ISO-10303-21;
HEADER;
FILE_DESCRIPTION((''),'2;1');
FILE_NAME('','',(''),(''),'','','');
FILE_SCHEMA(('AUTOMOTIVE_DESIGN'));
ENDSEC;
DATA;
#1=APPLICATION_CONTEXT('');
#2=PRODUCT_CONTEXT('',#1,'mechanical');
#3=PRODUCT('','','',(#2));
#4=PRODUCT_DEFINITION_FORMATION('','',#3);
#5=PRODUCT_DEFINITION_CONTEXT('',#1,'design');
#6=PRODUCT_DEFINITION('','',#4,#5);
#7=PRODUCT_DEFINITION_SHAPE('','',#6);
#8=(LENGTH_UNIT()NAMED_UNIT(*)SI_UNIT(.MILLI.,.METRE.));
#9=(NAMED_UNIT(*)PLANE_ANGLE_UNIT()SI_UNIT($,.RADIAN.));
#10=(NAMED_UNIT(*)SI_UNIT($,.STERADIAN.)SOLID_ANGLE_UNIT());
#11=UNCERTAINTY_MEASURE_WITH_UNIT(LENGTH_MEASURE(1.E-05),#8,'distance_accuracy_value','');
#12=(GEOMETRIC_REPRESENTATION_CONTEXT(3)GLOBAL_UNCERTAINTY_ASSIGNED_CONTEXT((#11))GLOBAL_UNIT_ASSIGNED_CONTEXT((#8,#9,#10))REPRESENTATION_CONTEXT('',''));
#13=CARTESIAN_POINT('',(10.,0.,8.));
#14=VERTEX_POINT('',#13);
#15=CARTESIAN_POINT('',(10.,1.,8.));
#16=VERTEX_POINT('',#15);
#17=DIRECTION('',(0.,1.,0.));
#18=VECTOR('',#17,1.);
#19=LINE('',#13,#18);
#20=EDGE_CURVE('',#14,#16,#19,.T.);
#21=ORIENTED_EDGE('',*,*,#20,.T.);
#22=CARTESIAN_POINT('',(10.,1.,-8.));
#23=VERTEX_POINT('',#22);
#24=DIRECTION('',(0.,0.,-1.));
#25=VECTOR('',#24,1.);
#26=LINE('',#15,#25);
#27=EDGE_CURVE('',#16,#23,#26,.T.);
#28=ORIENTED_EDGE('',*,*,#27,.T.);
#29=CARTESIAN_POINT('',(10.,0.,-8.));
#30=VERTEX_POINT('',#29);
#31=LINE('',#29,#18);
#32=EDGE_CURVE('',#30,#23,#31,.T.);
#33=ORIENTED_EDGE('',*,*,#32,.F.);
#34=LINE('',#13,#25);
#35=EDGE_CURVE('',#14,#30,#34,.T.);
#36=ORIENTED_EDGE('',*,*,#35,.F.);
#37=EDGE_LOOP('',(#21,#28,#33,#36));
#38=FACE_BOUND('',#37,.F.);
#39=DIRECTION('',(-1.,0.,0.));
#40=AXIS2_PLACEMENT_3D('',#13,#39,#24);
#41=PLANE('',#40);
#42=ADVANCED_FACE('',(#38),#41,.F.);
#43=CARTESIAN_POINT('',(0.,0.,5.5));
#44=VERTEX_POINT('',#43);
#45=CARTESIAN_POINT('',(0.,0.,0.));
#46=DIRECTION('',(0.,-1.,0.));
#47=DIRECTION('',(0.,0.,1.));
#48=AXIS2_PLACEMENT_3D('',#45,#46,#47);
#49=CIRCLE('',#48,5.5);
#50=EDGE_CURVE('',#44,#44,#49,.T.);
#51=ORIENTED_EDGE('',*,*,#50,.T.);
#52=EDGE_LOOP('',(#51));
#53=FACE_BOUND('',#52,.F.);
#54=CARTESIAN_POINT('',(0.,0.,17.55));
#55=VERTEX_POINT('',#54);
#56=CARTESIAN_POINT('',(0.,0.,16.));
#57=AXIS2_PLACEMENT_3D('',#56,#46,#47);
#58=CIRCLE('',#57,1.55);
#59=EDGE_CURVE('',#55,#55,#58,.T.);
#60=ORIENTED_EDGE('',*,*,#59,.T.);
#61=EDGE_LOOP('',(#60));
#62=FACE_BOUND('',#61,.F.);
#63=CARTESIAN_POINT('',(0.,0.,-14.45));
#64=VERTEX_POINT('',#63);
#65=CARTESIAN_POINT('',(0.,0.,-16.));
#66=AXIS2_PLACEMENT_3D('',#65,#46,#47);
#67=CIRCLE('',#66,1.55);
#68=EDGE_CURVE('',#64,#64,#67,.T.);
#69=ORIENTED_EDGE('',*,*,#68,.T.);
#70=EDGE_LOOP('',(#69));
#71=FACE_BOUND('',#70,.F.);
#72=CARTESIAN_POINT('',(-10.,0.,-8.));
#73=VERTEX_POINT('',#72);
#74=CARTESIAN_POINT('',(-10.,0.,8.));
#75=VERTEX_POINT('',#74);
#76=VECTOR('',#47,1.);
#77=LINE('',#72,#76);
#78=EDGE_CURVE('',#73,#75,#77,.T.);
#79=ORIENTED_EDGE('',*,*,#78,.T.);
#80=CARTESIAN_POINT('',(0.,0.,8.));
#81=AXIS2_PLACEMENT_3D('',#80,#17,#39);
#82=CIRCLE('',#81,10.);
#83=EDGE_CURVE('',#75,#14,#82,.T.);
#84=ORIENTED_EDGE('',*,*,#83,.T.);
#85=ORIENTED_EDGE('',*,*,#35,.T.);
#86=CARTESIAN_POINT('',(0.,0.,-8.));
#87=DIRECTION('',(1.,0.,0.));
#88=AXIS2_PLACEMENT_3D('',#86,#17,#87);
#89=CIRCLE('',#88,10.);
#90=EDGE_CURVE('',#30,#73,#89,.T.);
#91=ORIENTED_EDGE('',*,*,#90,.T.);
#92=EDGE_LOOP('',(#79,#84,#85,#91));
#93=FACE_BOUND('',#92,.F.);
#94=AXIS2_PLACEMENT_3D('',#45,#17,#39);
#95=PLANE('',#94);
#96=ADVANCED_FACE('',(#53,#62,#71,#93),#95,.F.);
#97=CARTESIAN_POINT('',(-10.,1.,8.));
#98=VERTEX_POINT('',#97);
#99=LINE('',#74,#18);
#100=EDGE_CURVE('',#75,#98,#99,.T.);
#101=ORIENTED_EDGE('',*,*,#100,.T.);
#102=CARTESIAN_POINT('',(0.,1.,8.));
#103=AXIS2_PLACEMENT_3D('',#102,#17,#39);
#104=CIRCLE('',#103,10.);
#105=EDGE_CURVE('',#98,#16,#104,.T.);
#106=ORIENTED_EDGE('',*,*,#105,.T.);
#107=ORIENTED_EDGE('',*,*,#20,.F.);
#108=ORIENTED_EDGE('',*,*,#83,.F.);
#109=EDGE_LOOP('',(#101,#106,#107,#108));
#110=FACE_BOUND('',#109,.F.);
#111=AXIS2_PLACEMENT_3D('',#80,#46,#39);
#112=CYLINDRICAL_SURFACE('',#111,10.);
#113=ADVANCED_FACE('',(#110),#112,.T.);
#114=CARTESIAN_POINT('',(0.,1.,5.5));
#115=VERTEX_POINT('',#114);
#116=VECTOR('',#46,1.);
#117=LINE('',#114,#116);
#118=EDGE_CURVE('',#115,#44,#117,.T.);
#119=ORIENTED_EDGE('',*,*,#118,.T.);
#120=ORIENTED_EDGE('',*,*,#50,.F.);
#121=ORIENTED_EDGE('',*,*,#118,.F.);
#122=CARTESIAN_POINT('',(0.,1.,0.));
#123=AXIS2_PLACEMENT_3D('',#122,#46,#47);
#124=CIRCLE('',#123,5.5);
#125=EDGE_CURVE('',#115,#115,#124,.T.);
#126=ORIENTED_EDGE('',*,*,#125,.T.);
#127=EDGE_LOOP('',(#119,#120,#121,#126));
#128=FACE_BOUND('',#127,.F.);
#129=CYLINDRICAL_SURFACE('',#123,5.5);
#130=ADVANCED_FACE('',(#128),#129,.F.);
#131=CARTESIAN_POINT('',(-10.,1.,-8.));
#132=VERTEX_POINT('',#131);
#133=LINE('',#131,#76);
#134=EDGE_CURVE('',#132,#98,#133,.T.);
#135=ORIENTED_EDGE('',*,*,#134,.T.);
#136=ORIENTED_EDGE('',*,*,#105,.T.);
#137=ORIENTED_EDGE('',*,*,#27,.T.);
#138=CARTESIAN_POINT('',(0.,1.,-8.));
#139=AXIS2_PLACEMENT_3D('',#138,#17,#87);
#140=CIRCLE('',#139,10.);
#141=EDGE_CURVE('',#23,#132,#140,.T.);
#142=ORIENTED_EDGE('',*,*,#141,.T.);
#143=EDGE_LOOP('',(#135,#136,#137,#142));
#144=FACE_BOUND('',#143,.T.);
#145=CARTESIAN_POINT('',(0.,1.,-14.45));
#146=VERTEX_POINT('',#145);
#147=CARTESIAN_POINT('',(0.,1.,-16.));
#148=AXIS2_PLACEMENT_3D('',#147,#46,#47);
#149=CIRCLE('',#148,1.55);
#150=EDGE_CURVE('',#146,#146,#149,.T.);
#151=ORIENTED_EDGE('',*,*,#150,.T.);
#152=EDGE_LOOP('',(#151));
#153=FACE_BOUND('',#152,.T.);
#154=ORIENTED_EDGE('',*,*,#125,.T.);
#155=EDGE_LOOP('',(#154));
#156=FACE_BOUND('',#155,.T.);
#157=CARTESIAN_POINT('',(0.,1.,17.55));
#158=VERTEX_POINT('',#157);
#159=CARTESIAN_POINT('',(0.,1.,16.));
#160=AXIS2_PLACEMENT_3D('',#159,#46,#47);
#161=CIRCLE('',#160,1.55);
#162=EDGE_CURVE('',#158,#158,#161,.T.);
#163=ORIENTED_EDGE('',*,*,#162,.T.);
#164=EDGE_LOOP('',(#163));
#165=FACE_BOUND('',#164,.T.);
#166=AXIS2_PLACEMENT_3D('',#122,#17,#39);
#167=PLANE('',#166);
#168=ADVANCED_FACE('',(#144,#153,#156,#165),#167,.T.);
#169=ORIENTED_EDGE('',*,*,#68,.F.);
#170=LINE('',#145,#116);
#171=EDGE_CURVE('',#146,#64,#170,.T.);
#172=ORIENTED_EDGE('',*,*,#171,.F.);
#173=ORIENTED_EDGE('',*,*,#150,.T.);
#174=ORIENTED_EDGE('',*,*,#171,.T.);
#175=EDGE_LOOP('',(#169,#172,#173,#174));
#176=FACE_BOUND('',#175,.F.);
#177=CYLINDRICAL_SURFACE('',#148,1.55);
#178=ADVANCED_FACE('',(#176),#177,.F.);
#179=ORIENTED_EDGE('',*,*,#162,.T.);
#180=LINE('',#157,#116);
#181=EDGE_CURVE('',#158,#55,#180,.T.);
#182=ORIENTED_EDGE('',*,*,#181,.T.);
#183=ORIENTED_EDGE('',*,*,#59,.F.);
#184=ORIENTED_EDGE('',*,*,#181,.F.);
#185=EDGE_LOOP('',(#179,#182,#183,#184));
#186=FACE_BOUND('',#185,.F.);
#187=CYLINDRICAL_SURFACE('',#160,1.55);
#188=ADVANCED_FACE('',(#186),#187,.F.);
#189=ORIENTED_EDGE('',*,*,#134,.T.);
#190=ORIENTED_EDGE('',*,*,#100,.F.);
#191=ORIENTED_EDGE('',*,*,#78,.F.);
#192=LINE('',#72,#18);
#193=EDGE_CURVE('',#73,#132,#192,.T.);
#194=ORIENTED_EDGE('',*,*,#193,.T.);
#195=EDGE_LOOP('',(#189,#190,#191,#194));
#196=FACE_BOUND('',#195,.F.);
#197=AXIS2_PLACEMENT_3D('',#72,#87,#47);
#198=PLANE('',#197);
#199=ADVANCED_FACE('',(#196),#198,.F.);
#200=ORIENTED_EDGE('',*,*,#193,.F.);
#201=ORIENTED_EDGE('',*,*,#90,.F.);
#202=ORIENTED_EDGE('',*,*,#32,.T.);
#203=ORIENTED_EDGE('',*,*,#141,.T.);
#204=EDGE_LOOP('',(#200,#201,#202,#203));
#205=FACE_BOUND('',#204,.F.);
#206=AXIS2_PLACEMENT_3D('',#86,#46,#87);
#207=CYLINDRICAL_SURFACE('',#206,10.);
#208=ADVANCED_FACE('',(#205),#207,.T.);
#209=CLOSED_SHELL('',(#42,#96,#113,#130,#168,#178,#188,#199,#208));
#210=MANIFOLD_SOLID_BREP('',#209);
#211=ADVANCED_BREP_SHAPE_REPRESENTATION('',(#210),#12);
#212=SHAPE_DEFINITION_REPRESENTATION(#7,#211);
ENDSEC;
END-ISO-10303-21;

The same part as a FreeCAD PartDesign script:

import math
import FreeCAD as App
import Part
import Sketcher
from FreeCAD import Vector
Q = App.Units.Quantity

doc = App.newDocument("Part")
body = doc.addObject("PartDesign::Body", "Body")

# Sketch on XZ plane
sketch1 = body.newObject("Sketcher::SketchObject", "Sketch")
sketch1.AttachmentSupport = (doc.getObject("XZ_Plane"), [""])
sketch1.MapMode = "FlatFace"
sketch1.addGeometry(Part.ArcOfCircle(Part.Circle(Vector(0, 8, 0), Vector(0, 0, 1), 10), math.radians(0), math.radians(180)), False)
sketch1.addGeometry(Part.LineSegment(Vector(10, 8, 0), Vector(10, -8, 0)), False)
sketch1.addGeometry(Part.ArcOfCircle(Part.Circle(Vector(0, -8, 0), Vector(0, 0, 1), 10), math.radians(180), math.radians(360)), False)
sketch1.addGeometry(Part.LineSegment(Vector(-10, -8, 0), Vector(-10, 8, 0)), False)
sketch1.addConstraint(Sketcher.Constraint("Tangent", 0, 1, 1, 1))
sketch1.addConstraint(Sketcher.Constraint("Tangent", 1, 2, 2, 2))
sketch1.addConstraint(Sketcher.Constraint("Tangent", 2, 1, 3, 1))
sketch1.addConstraint(Sketcher.Constraint("Tangent", 3, 2, 0, 2))
sketch1.addConstraint(Sketcher.Constraint("Vertical", 1))
sketch1.addConstraint(Sketcher.Constraint("Vertical", 3))
sketch1.addConstraint(Sketcher.Constraint("Symmetric", 0, 3, 2, 3, -1, 1))
sketch1.addConstraint(Sketcher.Constraint("Radius", 0, Q("10 mm")))
sketch1.addConstraint(Sketcher.Constraint("DistanceY", 1, 2, 1, 1, Q("16 mm")))
pad1 = body.newObject("PartDesign::Pad", "Pad")
pad1.Profile = sketch1
pad1.Length = 1
pad1.Reversed = True

# Sketch on XZ plane
sketch2 = body.newObject("Sketcher::SketchObject", "Sketch001")
sketch2.AttachmentSupport = (doc.getObject("XZ_Plane"), [""])
sketch2.MapMode = "FlatFace"
sketch2.AttachmentOffset = App.Placement(Vector(0, 0, -1), App.Rotation())
sketch2.addGeometry(Part.Circle(Vector(0, 16, 0), Vector(0, 0, 1), 1.55), False)
sketch2.addGeometry(Part.Circle(Vector(0, -16, 0), Vector(0, 0, 1), 1.55), False)
sketch2.addConstraint(Sketcher.Constraint("Equal", 0, 1))
sketch2.addConstraint(Sketcher.Constraint("Symmetric", 0, 3, 1, 3, -1, 1))
sketch2.addConstraint(Sketcher.Constraint("PointOnObject", 0, 3, -2))
sketch2.addConstraint(Sketcher.Constraint("Diameter", 0, Q("3.1 mm")))
sketch2.addConstraint(Sketcher.Constraint("DistanceY", -1, 1, 0, 3, Q("16 mm")))
doc.recompute()
hole = body.newObject("PartDesign::Hole", "Hole")
hole.Profile = sketch2
hole.ThreadType = "None"
hole.Diameter = 3.1
hole.DepthType = "Dimension"
hole.Depth = 1
hole.DrillPoint = "Flat"
hole.Reversed = True

# Sketch on XZ plane
sketch3 = body.newObject("Sketcher::SketchObject", "Sketch002")
sketch3.AttachmentSupport = (doc.getObject("XZ_Plane"), [""])
sketch3.MapMode = "FlatFace"
sketch3.AttachmentOffset = App.Placement(Vector(0, 0, -1), App.Rotation())
sketch3.addGeometry(Part.Circle(Vector(0, 0, 0), Vector(0, 0, 1), 5.5), False)
sketch3.addConstraint(Sketcher.Constraint("Coincident", 0, 3, -1, 1))
sketch3.addConstraint(Sketcher.Constraint("Diameter", 0, Q("11 mm")))
doc.recompute()
hole2 = body.newObject("PartDesign::Hole", "Hole001")
hole2.Profile = sketch3
hole2.ThreadType = "None"
hole2.Diameter = 11
hole2.DepthType = "Dimension"
hole2.Depth = 1
hole2.DrillPoint = "Flat"
hole2.Reversed = True

doc.recompute()
